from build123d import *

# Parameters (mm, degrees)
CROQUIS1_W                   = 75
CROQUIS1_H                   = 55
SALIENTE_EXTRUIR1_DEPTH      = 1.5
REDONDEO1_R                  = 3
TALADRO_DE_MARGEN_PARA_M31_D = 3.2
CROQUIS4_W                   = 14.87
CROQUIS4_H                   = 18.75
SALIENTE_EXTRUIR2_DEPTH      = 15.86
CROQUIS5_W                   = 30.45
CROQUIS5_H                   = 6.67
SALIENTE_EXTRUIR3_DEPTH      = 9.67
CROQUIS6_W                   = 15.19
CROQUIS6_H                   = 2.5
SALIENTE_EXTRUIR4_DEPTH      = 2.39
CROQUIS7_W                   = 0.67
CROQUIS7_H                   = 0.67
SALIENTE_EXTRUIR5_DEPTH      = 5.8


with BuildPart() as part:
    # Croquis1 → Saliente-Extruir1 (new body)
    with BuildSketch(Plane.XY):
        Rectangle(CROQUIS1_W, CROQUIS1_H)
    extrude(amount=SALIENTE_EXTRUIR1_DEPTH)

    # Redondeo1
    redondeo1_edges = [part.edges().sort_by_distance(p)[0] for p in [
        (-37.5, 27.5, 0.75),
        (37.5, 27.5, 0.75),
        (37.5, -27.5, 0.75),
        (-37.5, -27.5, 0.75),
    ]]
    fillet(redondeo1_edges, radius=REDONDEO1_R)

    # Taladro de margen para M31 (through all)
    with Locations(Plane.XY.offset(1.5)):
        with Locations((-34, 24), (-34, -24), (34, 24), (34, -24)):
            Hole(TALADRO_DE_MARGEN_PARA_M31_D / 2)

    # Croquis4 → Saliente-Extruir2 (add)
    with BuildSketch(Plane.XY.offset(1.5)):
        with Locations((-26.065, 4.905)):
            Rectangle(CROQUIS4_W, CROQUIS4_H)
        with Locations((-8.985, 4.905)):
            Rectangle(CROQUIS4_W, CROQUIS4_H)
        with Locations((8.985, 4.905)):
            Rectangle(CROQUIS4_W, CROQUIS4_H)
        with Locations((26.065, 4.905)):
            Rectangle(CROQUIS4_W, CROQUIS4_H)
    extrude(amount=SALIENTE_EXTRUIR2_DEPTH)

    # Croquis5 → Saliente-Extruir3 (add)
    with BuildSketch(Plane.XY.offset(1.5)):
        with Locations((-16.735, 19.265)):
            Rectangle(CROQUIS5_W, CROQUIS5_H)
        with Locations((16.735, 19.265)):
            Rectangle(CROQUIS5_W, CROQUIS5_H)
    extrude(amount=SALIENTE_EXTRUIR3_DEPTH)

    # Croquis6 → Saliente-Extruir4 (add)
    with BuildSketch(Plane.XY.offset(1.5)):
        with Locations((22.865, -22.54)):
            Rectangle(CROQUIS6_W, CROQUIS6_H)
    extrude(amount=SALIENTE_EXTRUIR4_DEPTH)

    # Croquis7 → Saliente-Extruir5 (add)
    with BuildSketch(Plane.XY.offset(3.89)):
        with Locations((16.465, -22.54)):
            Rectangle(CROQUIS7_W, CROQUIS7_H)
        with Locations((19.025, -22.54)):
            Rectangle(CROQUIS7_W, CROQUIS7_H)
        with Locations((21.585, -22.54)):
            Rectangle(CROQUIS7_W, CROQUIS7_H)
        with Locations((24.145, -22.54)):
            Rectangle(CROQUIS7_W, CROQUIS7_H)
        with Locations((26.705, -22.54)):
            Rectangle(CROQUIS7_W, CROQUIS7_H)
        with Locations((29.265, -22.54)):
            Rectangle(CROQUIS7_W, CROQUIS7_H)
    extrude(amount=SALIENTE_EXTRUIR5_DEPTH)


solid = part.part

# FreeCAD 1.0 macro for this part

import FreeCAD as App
import Part
import Sketcher


def edges_at(feature, points):
    """Names of the edges that pass closest to the given points."""
    edges = feature.Shape.Edges
    near = lambda p: min(range(len(edges)), key=lambda i: edges[i].distToShape(Part.Vertex(*p))[0])
    return sorted({f"Edge{near(p) + 1}" for p in points})


def add_polygon(sketch, points):
    """Adds a closed chain of lines whose ends are joined by coincident constraints."""
    first, n = sketch.GeometryCount, len(points)
    for a, b in zip(points, points[1:] + points[:1]):
        sketch.addGeometry(Part.LineSegment(App.Vector(*a, 0), App.Vector(*b, 0)), False)
    for i in range(n):
        sketch.addConstraint(Sketcher.Constraint("Coincident", first + i, 2, first + (i + 1) % n, 1))

doc = App.newDocument("Part")
body = doc.addObject("PartDesign::Body", "Body")

sketch1 = body.newObject("Sketcher::SketchObject", "Sketch")
sketch1.AttachmentSupport = (doc.getObject("XY_Plane"), [""])
sketch1.MapMode = "FlatFace"
add_polygon(sketch1, [(-38, 28), (-38, -28), (38, -28), (38, 28)])
sketch1.addConstraint([
    Sketcher.Constraint("Vertical", 0),
    Sketcher.Constraint("Horizontal", 1),
    Sketcher.Constraint("Vertical", 2),
    Sketcher.Constraint("Horizontal", 3),
    Sketcher.Constraint("Symmetric", 0, 2, 2, 2, -1, 1),
    Sketcher.Constraint("DistanceX", 1, 1, 1, 2, 75.0),
    Sketcher.Constraint("DistanceY", 0, 2, 0, 1, 55.0),
])
pad1 = body.newObject("PartDesign::Pad", "Pad")
pad1.Profile = sketch1
pad1.Length = 1.5
doc.recompute()

fillet = body.newObject("PartDesign::Fillet", "Fillet")
fillet.Base = (pad1, edges_at(pad1, [
    (-37.5, 27.5, 0.75),
    (37.5, 27.5, 0.75),
    (37.5, -27.5, 0.75),
    (-37.5, -27.5, 0.75),
]))
fillet.Radius = 3

sketch2 = body.newObject("Sketcher::SketchObject", "Sketch001")
sketch2.AttachmentSupport = (doc.getObject("XY_Plane"), [""])
sketch2.MapMode = "FlatFace"
sketch2.AttachmentOffset = App.Placement(App.Vector(0, 0, 1.5), App.Rotation())
sketch2.addGeometry([
    Part.Circle(App.Vector(-34, 24, 0), App.Vector(0, 0, 1), 1.6),
    Part.Circle(App.Vector(-34, -24, 0), App.Vector(0, 0, 1), 1.6),
    Part.Circle(App.Vector(34, 24, 0), App.Vector(0, 0, 1), 1.6),
    Part.Circle(App.Vector(34, -24, 0), App.Vector(0, 0, 1), 1.6),
], False)
sketch2.addConstraint([
    Sketcher.Constraint("Equal", 0, 1),
    Sketcher.Constraint("Equal", 1, 2),
    Sketcher.Constraint("Equal", 2, 3),
    Sketcher.Constraint("Symmetric", 1, 3, 2, 3, -1, 1),
    Sketcher.Constraint("Symmetric", 0, 3, 3, 3, -1, 1),
    Sketcher.Constraint("Symmetric", 0, 3, 2, 3, -2),
    Sketcher.Constraint("Diameter", 0, 3.2),
    Sketcher.Constraint("DistanceX", 0, 3, -1, 1, 34.0),
    Sketcher.Constraint("DistanceY", -1, 1, 0, 3, 24.0),
])
doc.recompute()
hole = body.newObject("PartDesign::Hole", "Hole")
hole.Profile = sketch2
hole.ThreadType = "None"
hole.Diameter = 3.2
hole.DepthType = "ThroughAll"

sketch3 = body.newObject("Sketcher::SketchObject", "Sketch002")
sketch3.AttachmentSupport = (doc.getObject("XY_Plane"), [""])
sketch3.MapMode = "FlatFace"
sketch3.AttachmentOffset = App.Placement(App.Vector(0, 0, 1.5), App.Rotation())
add_polygon(sketch3, [(-34, 14), (-34, -4), (-19, -4), (-19, 14)])
add_polygon(sketch3, [(-16, 14), (-16, -4), (-2, -4), (-2, 14)])
add_polygon(sketch3, [(2, 14), (2, -4), (16, -4), (16, 14)])
add_polygon(sketch3, [(19, 14), (19, -4), (34, -4), (34, 14)])
sketch3.addConstraint([
    Sketcher.Constraint("Vertical", 0),
    Sketcher.Constraint("Horizontal", 1),
    Sketcher.Constraint("Vertical", 2),
    Sketcher.Constraint("Horizontal", 3),
    Sketcher.Constraint("Vertical", 4),
    Sketcher.Constraint("Horizontal", 5),
    Sketcher.Constraint("Vertical", 6),
    Sketcher.Constraint("Horizontal", 7),
    Sketcher.Constraint("Vertical", 8),
    Sketcher.Constraint("Horizontal", 9),
    Sketcher.Constraint("Vertical", 10),
    Sketcher.Constraint("Horizontal", 11),
    Sketcher.Constraint("Vertical", 12),
    Sketcher.Constraint("Horizontal", 13),
    Sketcher.Constraint("Vertical", 14),
    Sketcher.Constraint("Horizontal", 15),
    Sketcher.Constraint("Symmetric", 5, 2, 8, 2, -2),
    Sketcher.Constraint("Symmetric", 7, 2, 10, 2, -2),
    Sketcher.Constraint("Symmetric", 1, 2, 12, 2, -2),
    Sketcher.Constraint("Symmetric", 3, 2, 14, 2, -2),
    Sketcher.Constraint("Horizontal", 1, 2, 4, 2),
    Sketcher.Constraint("Horizontal", 3, 2, 6, 2),
    Sketcher.Constraint("Equal", 3, 5),
    Sketcher.Constraint("DistanceX", 1, 1, 1, 2, 14.87),
    Sketcher.Constraint("DistanceY", 0, 2, 0, 1, 18.75),
    Sketcher.Constraint("DistanceX", 0, 2, -1, 1, 33.5),
    Sketcher.Constraint("DistanceX", 5, 2, 8, 2, 3.1),
    Sketcher.Constraint("DistanceY", 0, 2, -1, 1, 4.47),
])
pad2 = body.newObject("PartDesign::Pad", "Pad001")
pad2.Profile = sketch3
pad2.Length = 15.86

sketch4 = body.newObject("Sketcher::SketchObject", "Sketch003")
sketch4.AttachmentSupport = (doc.getObject("XY_Plane"), [""])
sketch4.MapMode = "FlatFace"
sketch4.AttachmentOffset = App.Placement(App.Vector(0, 0, 1.5), App.Rotation())
add_polygon(sketch4, [(-32, 23), (-32, 16), (-2, 16), (-2, 23)])
add_polygon(sketch4, [(2, 23), (2, 16), (32, 16), (32, 23)])
sketch4.addConstraint([
    Sketcher.Constraint("Vertical", 0),
    Sketcher.Constraint("Horizontal", 1),
    Sketcher.Constraint("Vertical", 2),
    Sketcher.Constraint("Horizontal", 3),
    Sketcher.Constraint("Vertical", 4),
    Sketcher.Constraint("Horizontal", 5),
    Sketcher.Constraint("Vertical", 6),
    Sketcher.Constraint("Horizontal", 7),
    Sketcher.Constraint("Symmetric", 1, 2, 4, 2, -2),
    Sketcher.Constraint("Symmetric", 3, 2, 6, 2, -2),
    Sketcher.Constraint("DistanceX", 1, 1, 1, 2, 30.45),
    Sketcher.Constraint("DistanceY", 0, 2, 0, 1, 6.67),
    Sketcher.Constraint("DistanceY", -1, 1, 2, 2, 22.6),
    Sketcher.Constraint("DistanceX", 0, 2, -1, 1, 31.96),
])
pad3 = body.newObject("PartDesign::Pad", "Pad002")
pad3.Profile = sketch4
pad3.Length = 9.67

sketch5 = body.newObject("Sketcher::SketchObject", "Sketch004")
sketch5.AttachmentSupport = (doc.getObject("XY_Plane"), [""])
sketch5.MapMode = "FlatFace"
sketch5.AttachmentOffset = App.Placement(App.Vector(0, 0, 1.5), App.Rotation())
add_polygon(sketch5, [(15.3, -21.3), (15.3, -23.8), (30.5, -23.8), (30.5, -21.3)])
sketch5.addConstraint([
    Sketcher.Constraint("Vertical", 0),
    Sketcher.Constraint("Horizontal", 1),
    Sketcher.Constraint("Vertical", 2),
    Sketcher.Constraint("Horizontal", 3),
    Sketcher.Constraint("DistanceY", 0, 2, 0, 1, 2.5),
    Sketcher.Constraint("DistanceX", 1, 1, 1, 2, 15.19),
    Sketcher.Constraint("DistanceX", -1, 1, 0, 2, 15.27),
    Sketcher.Constraint("DistanceY", 0, 2, -1, 1, 23.79),
])
pad4 = body.newObject("PartDesign::Pad", "Pad003")
pad4.Profile = sketch5
pad4.Length = 2.39

sketch6 = body.newObject("Sketcher::SketchObject", "Sketch005")
sketch6.AttachmentSupport = (doc.getObject("XY_Plane"), [""])
sketch6.MapMode = "FlatFace"
sketch6.AttachmentOffset = App.Placement(App.Vector(0, 0, 3.89), App.Rotation())
add_polygon(sketch6, [(16.1, -22.2), (16.1, -22.9), (16.8, -22.9), (16.8, -22.2)])
add_polygon(sketch6, [(18.7, -22.2), (18.7, -22.9), (19.4, -22.9), (19.4, -22.2)])
add_polygon(sketch6, [(21.2, -22.2), (21.2, -22.9), (21.9, -22.9), (21.9, -22.2)])
add_polygon(sketch6, [(23.8, -22.2), (23.8, -22.9), (24.5, -22.9), (24.5, -22.2)])
add_polygon(sketch6, [(26.4, -22.2), (26.4, -22.9), (27, -22.9), (27, -22.2)])
add_polygon(sketch6, [(28.9, -22.2), (28.9, -22.9), (29.6, -22.9), (29.6, -22.2)])
sketch6.addConstraint([
    Sketcher.Constraint("Vertical", 0),
    Sketcher.Constraint("Horizontal", 1),
    Sketcher.Constraint("Vertical", 2),
    Sketcher.Constraint("Horizontal", 3),
    Sketcher.Constraint("Vertical", 4),
    Sketcher.Constraint("Horizontal", 5),
    Sketcher.Constraint("Vertical", 6),
    Sketcher.Constraint("Horizontal", 7),
    Sketcher.Constraint("Vertical", 8),
    Sketcher.Constraint("Horizontal", 9),
    Sketcher.Constraint("Vertical", 10),
    Sketcher.Constraint("Horizontal", 11),
    Sketcher.Constraint("Vertical", 12),
    Sketcher.Constraint("Horizontal", 13),
    Sketcher.Constraint("Vertical", 14),
    Sketcher.Constraint("Horizontal", 15),
    Sketcher.Constraint("Vertical", 16),
    Sketcher.Constraint("Horizontal", 17),
    Sketcher.Constraint("Vertical", 18),
    Sketcher.Constraint("Horizontal", 19),
    Sketcher.Constraint("Vertical", 20),
    Sketcher.Constraint("Horizontal", 21),
    Sketcher.Constraint("Vertical", 22),
    Sketcher.Constraint("Horizontal", 23),
    Sketcher.Constraint("Horizontal", 1, 2, 4, 2),
    Sketcher.Constraint("Horizontal", 3, 2, 6, 2),
    Sketcher.Constraint("Horizontal", 5, 2, 8, 2),
    Sketcher.Constraint("Horizontal", 7, 2, 10, 2),
    Sketcher.Constraint("Horizontal", 9, 2, 12, 2),
    Sketcher.Constraint("Horizontal", 11, 2, 14, 2),
    Sketcher.Constraint("Horizontal", 13, 2, 16, 2),
    Sketcher.Constraint("Horizontal", 15, 2, 18, 2),
    Sketcher.Constraint("Horizontal", 17, 2, 20, 2),
    Sketcher.Constraint("Horizontal", 19, 2, 22, 2),
    Sketcher.Constraint("Equal", 3, 5),
    Sketcher.Constraint("Equal", 7, 9),
    Sketcher.Constraint("Equal", 11, 13),
    Sketcher.Constraint("Equal", 15, 17),
    Sketcher.Constraint("Equal", 19, 21),
    Sketcher.Constraint("Equal", 23, 0),
    Sketcher.Constraint("DistanceX", 1, 1, 1, 2, 0.67),
    Sketcher.Constraint("DistanceX", -1, 1, 1, 2, 16.8),
    Sketcher.Constraint("DistanceX", -1, 1, 21, 2, 29.6),
    Sketcher.Constraint("DistanceX", -1, 1, 4, 2, 18.69),
    Sketcher.Constraint("DistanceX", -1, 1, 8, 2, 21.25),
    Sketcher.Constraint("DistanceX", -1, 1, 12, 2, 23.81),
    Sketcher.Constraint("DistanceX", -1, 1, 16, 2, 26.37),
    Sketcher.Constraint("DistanceY", 0, 2, -1, 1, 22.875),
])
pad5 = body.newObject("PartDesign::Pad", "Pad004")
pad5.Profile = sketch6
pad5.Length = 5.8

doc.recompute()
